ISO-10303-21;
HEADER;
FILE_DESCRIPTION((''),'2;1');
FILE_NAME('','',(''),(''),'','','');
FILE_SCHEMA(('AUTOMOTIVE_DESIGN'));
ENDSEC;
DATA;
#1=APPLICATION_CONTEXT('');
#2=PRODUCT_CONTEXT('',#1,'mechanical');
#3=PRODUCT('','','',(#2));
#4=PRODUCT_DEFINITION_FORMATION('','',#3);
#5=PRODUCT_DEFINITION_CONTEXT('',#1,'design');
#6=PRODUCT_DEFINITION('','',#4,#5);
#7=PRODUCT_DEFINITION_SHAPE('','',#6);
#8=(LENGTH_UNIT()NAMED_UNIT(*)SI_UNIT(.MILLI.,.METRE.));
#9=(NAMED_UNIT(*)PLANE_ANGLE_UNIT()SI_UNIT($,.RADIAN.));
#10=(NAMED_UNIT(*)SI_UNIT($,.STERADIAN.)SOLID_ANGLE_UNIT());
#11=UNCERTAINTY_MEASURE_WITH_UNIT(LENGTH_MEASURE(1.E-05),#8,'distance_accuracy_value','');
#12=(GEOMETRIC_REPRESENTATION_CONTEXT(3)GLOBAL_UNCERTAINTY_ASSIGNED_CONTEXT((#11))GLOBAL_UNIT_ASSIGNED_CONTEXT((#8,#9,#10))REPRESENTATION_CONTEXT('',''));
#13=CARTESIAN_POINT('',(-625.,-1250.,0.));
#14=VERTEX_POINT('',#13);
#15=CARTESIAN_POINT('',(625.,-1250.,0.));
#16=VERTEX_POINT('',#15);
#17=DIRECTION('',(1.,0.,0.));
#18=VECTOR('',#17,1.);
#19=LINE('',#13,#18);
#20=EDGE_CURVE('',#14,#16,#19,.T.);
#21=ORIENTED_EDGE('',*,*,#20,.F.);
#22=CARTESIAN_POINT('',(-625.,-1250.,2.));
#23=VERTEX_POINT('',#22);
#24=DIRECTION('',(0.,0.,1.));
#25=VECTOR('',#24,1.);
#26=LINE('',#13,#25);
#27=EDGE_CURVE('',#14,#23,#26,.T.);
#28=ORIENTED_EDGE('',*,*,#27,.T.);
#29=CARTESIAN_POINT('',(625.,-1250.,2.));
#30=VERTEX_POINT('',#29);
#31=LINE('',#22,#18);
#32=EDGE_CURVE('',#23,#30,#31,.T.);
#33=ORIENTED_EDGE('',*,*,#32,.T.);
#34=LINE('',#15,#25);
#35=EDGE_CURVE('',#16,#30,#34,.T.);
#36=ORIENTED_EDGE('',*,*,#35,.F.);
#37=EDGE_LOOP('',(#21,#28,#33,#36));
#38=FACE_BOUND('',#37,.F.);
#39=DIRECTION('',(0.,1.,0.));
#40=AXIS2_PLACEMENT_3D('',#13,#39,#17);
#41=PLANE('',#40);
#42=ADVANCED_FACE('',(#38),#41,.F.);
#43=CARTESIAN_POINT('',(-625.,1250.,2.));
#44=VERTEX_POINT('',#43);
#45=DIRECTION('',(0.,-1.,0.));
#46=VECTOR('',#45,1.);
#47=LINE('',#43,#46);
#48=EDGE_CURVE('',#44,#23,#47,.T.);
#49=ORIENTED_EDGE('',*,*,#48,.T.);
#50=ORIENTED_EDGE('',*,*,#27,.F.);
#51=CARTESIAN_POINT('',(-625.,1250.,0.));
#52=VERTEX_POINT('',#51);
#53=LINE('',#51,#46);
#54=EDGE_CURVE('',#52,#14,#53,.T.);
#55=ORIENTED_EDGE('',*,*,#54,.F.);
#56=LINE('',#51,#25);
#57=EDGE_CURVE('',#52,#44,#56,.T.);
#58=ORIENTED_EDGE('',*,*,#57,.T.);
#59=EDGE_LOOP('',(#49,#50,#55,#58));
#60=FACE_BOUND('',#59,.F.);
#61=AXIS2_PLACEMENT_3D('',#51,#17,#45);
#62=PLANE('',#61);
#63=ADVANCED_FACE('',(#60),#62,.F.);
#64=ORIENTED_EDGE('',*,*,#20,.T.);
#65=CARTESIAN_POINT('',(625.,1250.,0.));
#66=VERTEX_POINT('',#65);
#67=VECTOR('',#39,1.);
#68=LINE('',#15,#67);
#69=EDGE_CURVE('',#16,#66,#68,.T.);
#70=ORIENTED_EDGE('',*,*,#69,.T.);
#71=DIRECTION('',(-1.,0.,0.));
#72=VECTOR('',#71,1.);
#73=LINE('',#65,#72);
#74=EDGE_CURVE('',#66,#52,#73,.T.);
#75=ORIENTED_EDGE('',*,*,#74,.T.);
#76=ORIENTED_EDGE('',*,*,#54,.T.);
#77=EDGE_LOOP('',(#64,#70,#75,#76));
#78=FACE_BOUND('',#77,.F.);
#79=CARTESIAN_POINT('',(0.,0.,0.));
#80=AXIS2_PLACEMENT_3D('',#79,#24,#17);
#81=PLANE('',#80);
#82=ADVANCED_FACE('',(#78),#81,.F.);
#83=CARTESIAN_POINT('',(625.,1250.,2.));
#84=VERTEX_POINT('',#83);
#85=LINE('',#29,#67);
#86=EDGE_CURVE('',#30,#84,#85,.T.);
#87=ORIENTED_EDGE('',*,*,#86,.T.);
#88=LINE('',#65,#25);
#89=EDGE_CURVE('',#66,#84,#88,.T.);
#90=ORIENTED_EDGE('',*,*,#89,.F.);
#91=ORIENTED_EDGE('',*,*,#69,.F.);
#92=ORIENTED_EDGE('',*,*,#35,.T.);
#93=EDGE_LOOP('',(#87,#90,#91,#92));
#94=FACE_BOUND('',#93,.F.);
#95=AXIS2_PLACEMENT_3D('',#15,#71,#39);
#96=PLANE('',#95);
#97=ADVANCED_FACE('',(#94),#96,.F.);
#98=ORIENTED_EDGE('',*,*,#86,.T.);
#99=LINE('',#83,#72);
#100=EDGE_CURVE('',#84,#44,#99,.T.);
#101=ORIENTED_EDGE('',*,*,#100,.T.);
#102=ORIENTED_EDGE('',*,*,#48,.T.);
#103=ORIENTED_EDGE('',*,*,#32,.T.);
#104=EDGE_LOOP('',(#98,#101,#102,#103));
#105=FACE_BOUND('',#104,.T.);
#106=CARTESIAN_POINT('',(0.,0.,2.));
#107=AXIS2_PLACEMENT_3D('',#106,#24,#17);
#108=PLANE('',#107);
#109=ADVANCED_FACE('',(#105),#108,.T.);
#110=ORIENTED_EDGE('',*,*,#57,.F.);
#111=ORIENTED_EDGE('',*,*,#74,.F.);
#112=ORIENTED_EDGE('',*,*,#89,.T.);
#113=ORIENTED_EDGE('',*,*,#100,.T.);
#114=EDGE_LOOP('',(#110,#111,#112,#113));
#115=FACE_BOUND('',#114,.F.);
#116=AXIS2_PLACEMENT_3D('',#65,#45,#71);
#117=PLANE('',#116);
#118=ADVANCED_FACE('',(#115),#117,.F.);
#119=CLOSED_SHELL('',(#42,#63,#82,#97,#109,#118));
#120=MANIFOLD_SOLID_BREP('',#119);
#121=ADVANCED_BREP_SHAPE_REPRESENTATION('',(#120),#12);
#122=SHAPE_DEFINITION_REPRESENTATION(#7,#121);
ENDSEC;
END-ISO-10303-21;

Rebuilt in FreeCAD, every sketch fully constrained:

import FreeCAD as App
import Part
import Sketcher
Q = App.Units.Quantity

doc = App.newDocument("Part")
body = doc.addObject("PartDesign::Body", "Body")

sketch1 = body.newObject("Sketcher::SketchObject", "Sketch")
sketch1.AttachmentSupport = (doc.getObject("XY_Plane"), [""])
sketch1.MapMode = "FlatFace"
sketch1.addGeometry(Part.LineSegment(App.Vector(-625, 1250, 0), App.Vector(-625, -1250, 0)), False)
sketch1.addGeometry(Part.LineSegment(App.Vector(-625, -1250, 0), App.Vector(625, -1250, 0)), False)
sketch1.addGeometry(Part.LineSegment(App.Vector(625, -1250, 0), App.Vector(625, 1250, 0)), False)
sketch1.addGeometry(Part.LineSegment(App.Vector(625, 1250, 0), App.Vector(-625, 1250, 0)), False)
sketch1.addConstraint(Sketcher.Constraint("Coincident", 0, 2, 1, 1))
sketch1.addConstraint(Sketcher.Constraint("Coincident", 1, 2, 2, 1))
sketch1.addConstraint(Sketcher.Constraint("Coincident", 2, 2, 3, 1))
sketch1.addConstraint(Sketcher.Constraint("Coincident", 3, 2, 0, 1))
sketch1.addConstraint(Sketcher.Constraint("Vertical", 0))
sketch1.addConstraint(Sketcher.Constraint("Horizontal", 1))
sketch1.addConstraint(Sketcher.Constraint("Vertical", 2))
sketch1.addConstraint(Sketcher.Constraint("Horizontal", 3))
sketch1.addConstraint(Sketcher.Constraint("Symmetric", 0, 2, 2, 2, -1, 1))
sketch1.addConstraint(Sketcher.Constraint("DistanceX", 1, 1, 1, 2, Q("1250 mm")))
sketch1.addConstraint(Sketcher.Constraint("DistanceY", 0, 2, 0, 1, Q("2500 mm")))
pad1 = body.newObject("PartDesign::Pad", "Pad")
pad1.Profile = sketch1
pad1.Length = 2

doc.recompute()
